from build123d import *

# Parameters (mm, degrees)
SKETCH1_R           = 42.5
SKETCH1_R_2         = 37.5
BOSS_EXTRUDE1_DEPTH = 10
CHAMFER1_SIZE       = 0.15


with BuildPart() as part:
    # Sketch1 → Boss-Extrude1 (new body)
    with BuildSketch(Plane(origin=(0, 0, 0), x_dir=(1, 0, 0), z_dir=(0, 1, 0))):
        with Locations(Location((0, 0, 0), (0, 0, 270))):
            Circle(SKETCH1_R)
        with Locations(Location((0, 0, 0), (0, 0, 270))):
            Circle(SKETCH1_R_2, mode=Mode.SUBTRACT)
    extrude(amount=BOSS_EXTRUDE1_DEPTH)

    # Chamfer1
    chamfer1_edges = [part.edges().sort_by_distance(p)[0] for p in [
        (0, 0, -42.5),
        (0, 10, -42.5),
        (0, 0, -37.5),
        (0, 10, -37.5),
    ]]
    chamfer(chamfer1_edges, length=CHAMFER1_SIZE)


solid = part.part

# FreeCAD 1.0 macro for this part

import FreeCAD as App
import Part
import Sketcher


def edges_at(feature, points):
    """Names of the edges that pass closest to the given points."""
    edges = feature.Shape.Edges
    near = lambda p: min(range(len(edges)), key=lambda i: edges[i].distToShape(Part.Vertex(*p))[0])
    return sorted({f"Edge{near(p) + 1}" for p in points})

doc = App.newDocument("Part")
body = doc.addObject("PartDesign::Body", "Body")

sketch1 = body.newObject("Sketcher::SketchObject", "Sketch")
sketch1.AttachmentSupport = (doc.getObject("XZ_Plane"), [""])
sketch1.MapMode = "FlatFace"
sketch1.addGeometry([
    Part.Circle(App.Vector(0, 0, 0), App.Vector(0, 0, 1), 42),
    Part.Circle(App.Vector(0, 0, 0), App.Vector(0, 0, 1), 38),
], False)
sketch1.addConstraint([
    Sketcher.Constraint("Coincident", 0, 3, -1, 1),
    Sketcher.Constraint("Coincident", 1, 3, -1, 1),
    Sketcher.Constraint("Diameter", 0, 85.0),
    Sketcher.Constraint("Diameter", 1, 75.0),
])
pad1 = body.newObject("PartDesign::Pad", "Pad")
pad1.Profile = sketch1
pad1.Length = 10
pad1.Reversed = True
doc.recompute()

chamfer = body.newObject("PartDesign::Chamfer", "Chamfer")
chamfer.Base = (pad1, edges_at(pad1, [
    (0, 0, -42.5),
    (0, 10, -42.5),
    (0, 0, -37.5),
    (0, 10, -37.5),
]))
chamfer.Size = 0.15

doc.recompute()
